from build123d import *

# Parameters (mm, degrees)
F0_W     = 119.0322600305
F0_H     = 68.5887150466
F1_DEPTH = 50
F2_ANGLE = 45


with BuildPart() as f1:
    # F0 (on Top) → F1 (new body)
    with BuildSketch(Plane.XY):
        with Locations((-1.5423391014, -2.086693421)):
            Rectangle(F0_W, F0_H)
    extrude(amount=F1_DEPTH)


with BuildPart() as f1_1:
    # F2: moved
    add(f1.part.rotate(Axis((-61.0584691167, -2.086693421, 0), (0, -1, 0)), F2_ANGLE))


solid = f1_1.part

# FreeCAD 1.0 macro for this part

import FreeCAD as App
import Part
import Sketcher


def add_polygon(sketch, points):
    """Adds a closed chain of lines whose ends are joined by coincident constraints."""
    first, n = sketch.GeometryCount, len(points)
    for a, b in zip(points, points[1:] + points[:1]):
        sketch.addGeometry(Part.LineSegment(App.Vector(*a, 0), App.Vector(*b, 0)), False)
    for i in range(n):
        sketch.addConstraint(Sketcher.Constraint("Coincident", first + i, 2, first + (i + 1) % n, 1))

doc = App.newDocument("Part")
body = doc.addObject("PartDesign::Body", "Body")

sketch1 = body.newObject("Sketcher::SketchObject", "Sketch")
sketch1.AttachmentSupport = (doc.getObject("XY_Plane"), [""])
sketch1.MapMode = "FlatFace"
add_polygon(sketch1, [(-61, 32), (-61, -36), (58, -36), (58, 32)])
sketch1.addConstraint([
    Sketcher.Constraint("Vertical", 0),
    Sketcher.Constraint("Horizontal", 1),
    Sketcher.Constraint("Vertical", 2),
    Sketcher.Constraint("Horizontal", 3),
    Sketcher.Constraint("DistanceX", 1, 1, 1, 2, 119.03226),
    Sketcher.Constraint("DistanceY", 0, 2, 0, 1, 68.588715),
    Sketcher.Constraint("DistanceX", 0, 2, -1, 1, 61.058469),
    Sketcher.Constraint("DistanceY", 0, 2, -1, 1, 36.381051),
])
pad1 = body.newObject("PartDesign::Pad", "Pad")
pad1.Profile = sketch1
pad1.Length = 50
body2 = doc.addObject("PartDesign::Body", "Body001")
doc.recompute()

body.Placement = App.Placement(App.Vector(-17.883612, 0, 43.174858), App.Rotation(App.Vector(0, -1, 0), 45))
boolean = body2.newObject("PartDesign::Boolean", "Boolean")
boolean.Type = "Fuse"
boolean.addObjects([body])

doc.recompute()
